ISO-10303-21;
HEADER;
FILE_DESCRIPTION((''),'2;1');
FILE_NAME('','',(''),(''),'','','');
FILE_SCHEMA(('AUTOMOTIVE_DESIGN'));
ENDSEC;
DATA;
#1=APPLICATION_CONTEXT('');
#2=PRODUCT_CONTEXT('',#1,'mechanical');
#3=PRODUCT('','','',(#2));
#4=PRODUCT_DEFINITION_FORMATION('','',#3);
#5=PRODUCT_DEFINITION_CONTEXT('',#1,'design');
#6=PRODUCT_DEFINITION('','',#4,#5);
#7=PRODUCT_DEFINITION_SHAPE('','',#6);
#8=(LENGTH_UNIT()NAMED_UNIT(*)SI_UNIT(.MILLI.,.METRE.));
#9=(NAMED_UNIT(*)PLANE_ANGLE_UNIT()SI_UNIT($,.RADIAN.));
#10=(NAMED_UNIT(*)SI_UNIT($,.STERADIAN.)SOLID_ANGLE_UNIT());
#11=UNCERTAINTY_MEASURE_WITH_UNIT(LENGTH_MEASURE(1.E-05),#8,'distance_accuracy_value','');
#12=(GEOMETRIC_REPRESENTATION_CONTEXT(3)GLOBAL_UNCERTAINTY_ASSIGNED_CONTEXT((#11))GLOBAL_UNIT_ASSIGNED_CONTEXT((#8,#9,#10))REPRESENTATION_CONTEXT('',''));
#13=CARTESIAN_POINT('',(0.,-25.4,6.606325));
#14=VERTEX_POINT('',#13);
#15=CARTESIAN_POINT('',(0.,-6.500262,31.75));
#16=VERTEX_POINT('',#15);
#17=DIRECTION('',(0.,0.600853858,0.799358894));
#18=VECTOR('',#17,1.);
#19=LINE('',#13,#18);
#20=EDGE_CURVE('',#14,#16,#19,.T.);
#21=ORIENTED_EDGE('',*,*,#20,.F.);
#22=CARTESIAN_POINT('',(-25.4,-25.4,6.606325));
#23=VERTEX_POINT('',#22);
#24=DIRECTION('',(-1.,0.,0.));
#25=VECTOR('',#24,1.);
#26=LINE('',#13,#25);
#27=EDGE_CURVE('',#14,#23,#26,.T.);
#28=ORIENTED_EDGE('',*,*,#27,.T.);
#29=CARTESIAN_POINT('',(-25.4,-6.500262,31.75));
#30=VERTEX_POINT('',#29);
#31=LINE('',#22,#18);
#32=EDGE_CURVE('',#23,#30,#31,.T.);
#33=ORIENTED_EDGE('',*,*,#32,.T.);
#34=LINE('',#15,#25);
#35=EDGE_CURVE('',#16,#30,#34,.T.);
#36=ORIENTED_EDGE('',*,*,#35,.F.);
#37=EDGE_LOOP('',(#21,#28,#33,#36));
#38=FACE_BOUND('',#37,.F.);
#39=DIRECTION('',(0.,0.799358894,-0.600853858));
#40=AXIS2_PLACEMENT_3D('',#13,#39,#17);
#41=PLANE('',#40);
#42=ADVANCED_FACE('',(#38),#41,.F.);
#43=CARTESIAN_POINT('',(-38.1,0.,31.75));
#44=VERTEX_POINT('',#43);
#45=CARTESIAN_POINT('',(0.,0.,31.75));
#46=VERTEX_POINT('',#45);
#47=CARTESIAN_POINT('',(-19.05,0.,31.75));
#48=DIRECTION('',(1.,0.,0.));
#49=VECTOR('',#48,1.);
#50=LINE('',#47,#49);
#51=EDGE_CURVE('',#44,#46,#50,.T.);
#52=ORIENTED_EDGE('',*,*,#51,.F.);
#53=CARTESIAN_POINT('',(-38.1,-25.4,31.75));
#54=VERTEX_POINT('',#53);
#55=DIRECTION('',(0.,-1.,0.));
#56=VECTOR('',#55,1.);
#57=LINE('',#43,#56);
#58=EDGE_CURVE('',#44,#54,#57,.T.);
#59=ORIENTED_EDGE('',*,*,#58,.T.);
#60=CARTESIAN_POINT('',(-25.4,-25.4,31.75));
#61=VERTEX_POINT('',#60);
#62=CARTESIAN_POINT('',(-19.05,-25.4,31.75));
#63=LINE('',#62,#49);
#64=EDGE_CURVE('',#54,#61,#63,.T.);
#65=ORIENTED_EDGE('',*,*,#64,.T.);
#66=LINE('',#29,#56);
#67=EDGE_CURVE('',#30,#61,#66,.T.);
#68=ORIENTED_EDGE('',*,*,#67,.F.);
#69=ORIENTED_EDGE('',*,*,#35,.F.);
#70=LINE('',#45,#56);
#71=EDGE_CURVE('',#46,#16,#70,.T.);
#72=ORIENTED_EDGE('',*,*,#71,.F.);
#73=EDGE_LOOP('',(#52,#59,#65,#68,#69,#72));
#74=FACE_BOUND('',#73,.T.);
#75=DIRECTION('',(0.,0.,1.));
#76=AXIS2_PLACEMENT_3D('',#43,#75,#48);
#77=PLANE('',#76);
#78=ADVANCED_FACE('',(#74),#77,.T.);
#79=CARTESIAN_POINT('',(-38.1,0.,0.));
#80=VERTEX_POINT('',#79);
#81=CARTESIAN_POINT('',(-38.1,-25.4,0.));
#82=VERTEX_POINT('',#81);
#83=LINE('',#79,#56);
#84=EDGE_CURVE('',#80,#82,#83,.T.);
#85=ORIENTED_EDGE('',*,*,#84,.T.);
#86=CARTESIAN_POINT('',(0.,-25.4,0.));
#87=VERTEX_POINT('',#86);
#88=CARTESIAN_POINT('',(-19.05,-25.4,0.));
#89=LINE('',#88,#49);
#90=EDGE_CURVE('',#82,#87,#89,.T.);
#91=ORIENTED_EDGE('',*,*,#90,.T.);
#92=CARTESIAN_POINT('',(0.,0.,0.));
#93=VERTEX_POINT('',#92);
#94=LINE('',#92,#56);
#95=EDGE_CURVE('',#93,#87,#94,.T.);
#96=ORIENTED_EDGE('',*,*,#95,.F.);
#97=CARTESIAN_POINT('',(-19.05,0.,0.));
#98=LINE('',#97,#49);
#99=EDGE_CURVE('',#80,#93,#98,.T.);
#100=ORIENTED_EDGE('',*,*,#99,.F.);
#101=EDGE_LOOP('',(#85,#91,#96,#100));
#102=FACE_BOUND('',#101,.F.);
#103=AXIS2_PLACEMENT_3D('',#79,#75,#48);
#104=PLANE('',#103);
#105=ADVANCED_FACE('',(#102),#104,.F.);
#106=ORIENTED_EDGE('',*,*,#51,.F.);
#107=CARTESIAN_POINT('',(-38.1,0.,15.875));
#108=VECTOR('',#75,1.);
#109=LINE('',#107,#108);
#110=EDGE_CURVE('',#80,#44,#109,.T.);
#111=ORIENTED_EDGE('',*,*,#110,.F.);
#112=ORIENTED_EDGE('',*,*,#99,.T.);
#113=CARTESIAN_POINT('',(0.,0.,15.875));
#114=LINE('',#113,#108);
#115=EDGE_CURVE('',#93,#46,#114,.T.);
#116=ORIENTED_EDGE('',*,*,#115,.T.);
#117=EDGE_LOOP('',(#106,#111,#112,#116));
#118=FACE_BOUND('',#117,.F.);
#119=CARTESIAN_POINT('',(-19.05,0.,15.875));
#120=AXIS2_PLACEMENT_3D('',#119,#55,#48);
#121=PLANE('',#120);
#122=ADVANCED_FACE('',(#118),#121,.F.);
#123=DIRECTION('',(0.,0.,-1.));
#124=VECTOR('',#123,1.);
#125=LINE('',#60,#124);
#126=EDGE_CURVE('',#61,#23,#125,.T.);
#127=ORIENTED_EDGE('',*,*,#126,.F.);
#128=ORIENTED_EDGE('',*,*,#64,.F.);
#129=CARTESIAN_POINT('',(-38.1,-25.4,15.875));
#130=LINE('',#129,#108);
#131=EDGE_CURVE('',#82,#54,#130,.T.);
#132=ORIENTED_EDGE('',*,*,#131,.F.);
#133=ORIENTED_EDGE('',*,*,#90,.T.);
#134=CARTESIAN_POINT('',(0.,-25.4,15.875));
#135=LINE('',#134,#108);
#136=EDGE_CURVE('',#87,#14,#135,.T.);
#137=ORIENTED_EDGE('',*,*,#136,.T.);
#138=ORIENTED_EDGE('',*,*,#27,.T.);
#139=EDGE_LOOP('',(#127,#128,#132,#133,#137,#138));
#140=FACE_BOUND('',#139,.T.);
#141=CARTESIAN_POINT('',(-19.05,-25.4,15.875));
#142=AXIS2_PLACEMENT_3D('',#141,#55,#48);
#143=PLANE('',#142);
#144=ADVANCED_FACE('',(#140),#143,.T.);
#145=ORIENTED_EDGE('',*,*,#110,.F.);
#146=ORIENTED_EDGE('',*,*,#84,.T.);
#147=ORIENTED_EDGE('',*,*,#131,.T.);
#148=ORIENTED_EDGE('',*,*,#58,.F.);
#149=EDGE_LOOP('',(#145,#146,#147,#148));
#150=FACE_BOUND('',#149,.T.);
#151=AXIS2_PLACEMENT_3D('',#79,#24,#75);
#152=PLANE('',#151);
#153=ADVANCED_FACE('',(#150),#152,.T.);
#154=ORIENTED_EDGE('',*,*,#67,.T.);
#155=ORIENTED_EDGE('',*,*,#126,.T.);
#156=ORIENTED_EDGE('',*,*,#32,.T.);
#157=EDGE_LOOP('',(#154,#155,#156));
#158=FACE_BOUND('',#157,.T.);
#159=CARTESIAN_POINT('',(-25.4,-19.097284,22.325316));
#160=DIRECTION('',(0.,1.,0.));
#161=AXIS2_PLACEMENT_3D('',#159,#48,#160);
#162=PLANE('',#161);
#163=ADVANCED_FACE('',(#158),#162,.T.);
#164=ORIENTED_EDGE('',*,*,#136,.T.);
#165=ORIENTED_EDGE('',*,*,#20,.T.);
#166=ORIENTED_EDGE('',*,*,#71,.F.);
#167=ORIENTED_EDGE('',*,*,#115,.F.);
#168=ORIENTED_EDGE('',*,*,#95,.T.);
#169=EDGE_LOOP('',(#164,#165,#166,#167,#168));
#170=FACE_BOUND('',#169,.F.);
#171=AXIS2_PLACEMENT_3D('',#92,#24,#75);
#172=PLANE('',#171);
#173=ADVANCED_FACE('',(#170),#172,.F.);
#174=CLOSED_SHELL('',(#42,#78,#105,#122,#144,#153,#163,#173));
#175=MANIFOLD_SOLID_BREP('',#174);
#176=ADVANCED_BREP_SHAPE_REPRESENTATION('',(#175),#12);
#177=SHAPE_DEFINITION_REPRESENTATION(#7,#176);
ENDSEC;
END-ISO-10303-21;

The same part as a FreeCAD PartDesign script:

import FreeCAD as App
import Part
import Sketcher

V = App.Vector
Q = App.Units.Quantity

doc = App.newDocument("Part")
body = doc.addObject("PartDesign::Body", "Body")

# Sketch on XZ plane
sketch1 = body.newObject("Sketcher::SketchObject", "Sketch")
sketch1.AttachmentSupport = (doc.getObject("XZ_Plane"), [""])
sketch1.MapMode = "FlatFace"
sketch1.addGeometry([
    Part.LineSegment(V(-38.1, 31.75, 0), V(-38.1, 0, 0)),
    Part.LineSegment(V(-38.1, 0, 0), V(0, 0, 0)),
    Part.LineSegment(V(0, 0, 0), V(0, 31.75, 0)),
    Part.LineSegment(V(0, 31.75, 0), V(-38.1, 31.75, 0)),
], False)
sketch1.addConstraint([
    Sketcher.Constraint("Coincident", 0, 2, 1, 1),
    Sketcher.Constraint("Coincident", 1, 2, 2, 1),
    Sketcher.Constraint("Coincident", 2, 2, 3, 1),
    Sketcher.Constraint("Coincident", 3, 2, 0, 1),
    Sketcher.Constraint("Vertical", 0),
    Sketcher.Constraint("Horizontal", 1),
    Sketcher.Constraint("Vertical", 2),
    Sketcher.Constraint("Horizontal", 3),
    Sketcher.Constraint("Coincident", 1, 2, -1, 1),
    Sketcher.Constraint("DistanceX", 1, 1, 1, 2, Q("1.5 in")),
    Sketcher.Constraint("DistanceY", 0, 2, 0, 1, Q("1.25 in")),
])
pad1 = body.newObject("PartDesign::Pad", "Pad")
pad1.Profile = sketch1
pad1.Length = Q("1 in")

# Sketch on YZ plane
sketch2 = body.newObject("Sketcher::SketchObject", "Sketch001")
sketch2.AttachmentSupport = (doc.getObject("YZ_Plane"), [""])
sketch2.MapMode = "FlatFace"
sketch2.addGeometry([
    Part.LineSegment(V(-25.4, 6.606325, 0), V(-6.500262, 31.75, 0)),
    Part.LineSegment(V(-6.500262, 31.75, 0), V(-25.4, 31.75, 0)),
    Part.LineSegment(V(-25.4, 31.75, 0), V(-25.4, 6.606325, 0)),
], False)
sketch2.addConstraint([
    Sketcher.Constraint("Coincident", 0, 2, 1, 1),
    Sketcher.Constraint("Coincident", 1, 2, 2, 1),
    Sketcher.Constraint("Coincident", 2, 2, 0, 1),
    Sketcher.Constraint("Horizontal", 1),
    Sketcher.Constraint("Vertical", 2),
    Sketcher.Constraint("DistanceX", 1, 2, -1, 1, Q("1 in")),
    Sketcher.Constraint("DistanceY", -1, 1, 0, 2, Q("1.25 in")),
    Sketcher.Constraint("Distance", 0, Q("31.454801 mm")),
    Sketcher.Constraint("DistanceX", 1, 2, 1, 1, Q("18.899738 mm")),
])
pocket1 = body.newObject("PartDesign::Pocket", "Pocket")
pocket1.Profile = sketch2
pocket1.Length = Q("1 in")

doc.recompute()
